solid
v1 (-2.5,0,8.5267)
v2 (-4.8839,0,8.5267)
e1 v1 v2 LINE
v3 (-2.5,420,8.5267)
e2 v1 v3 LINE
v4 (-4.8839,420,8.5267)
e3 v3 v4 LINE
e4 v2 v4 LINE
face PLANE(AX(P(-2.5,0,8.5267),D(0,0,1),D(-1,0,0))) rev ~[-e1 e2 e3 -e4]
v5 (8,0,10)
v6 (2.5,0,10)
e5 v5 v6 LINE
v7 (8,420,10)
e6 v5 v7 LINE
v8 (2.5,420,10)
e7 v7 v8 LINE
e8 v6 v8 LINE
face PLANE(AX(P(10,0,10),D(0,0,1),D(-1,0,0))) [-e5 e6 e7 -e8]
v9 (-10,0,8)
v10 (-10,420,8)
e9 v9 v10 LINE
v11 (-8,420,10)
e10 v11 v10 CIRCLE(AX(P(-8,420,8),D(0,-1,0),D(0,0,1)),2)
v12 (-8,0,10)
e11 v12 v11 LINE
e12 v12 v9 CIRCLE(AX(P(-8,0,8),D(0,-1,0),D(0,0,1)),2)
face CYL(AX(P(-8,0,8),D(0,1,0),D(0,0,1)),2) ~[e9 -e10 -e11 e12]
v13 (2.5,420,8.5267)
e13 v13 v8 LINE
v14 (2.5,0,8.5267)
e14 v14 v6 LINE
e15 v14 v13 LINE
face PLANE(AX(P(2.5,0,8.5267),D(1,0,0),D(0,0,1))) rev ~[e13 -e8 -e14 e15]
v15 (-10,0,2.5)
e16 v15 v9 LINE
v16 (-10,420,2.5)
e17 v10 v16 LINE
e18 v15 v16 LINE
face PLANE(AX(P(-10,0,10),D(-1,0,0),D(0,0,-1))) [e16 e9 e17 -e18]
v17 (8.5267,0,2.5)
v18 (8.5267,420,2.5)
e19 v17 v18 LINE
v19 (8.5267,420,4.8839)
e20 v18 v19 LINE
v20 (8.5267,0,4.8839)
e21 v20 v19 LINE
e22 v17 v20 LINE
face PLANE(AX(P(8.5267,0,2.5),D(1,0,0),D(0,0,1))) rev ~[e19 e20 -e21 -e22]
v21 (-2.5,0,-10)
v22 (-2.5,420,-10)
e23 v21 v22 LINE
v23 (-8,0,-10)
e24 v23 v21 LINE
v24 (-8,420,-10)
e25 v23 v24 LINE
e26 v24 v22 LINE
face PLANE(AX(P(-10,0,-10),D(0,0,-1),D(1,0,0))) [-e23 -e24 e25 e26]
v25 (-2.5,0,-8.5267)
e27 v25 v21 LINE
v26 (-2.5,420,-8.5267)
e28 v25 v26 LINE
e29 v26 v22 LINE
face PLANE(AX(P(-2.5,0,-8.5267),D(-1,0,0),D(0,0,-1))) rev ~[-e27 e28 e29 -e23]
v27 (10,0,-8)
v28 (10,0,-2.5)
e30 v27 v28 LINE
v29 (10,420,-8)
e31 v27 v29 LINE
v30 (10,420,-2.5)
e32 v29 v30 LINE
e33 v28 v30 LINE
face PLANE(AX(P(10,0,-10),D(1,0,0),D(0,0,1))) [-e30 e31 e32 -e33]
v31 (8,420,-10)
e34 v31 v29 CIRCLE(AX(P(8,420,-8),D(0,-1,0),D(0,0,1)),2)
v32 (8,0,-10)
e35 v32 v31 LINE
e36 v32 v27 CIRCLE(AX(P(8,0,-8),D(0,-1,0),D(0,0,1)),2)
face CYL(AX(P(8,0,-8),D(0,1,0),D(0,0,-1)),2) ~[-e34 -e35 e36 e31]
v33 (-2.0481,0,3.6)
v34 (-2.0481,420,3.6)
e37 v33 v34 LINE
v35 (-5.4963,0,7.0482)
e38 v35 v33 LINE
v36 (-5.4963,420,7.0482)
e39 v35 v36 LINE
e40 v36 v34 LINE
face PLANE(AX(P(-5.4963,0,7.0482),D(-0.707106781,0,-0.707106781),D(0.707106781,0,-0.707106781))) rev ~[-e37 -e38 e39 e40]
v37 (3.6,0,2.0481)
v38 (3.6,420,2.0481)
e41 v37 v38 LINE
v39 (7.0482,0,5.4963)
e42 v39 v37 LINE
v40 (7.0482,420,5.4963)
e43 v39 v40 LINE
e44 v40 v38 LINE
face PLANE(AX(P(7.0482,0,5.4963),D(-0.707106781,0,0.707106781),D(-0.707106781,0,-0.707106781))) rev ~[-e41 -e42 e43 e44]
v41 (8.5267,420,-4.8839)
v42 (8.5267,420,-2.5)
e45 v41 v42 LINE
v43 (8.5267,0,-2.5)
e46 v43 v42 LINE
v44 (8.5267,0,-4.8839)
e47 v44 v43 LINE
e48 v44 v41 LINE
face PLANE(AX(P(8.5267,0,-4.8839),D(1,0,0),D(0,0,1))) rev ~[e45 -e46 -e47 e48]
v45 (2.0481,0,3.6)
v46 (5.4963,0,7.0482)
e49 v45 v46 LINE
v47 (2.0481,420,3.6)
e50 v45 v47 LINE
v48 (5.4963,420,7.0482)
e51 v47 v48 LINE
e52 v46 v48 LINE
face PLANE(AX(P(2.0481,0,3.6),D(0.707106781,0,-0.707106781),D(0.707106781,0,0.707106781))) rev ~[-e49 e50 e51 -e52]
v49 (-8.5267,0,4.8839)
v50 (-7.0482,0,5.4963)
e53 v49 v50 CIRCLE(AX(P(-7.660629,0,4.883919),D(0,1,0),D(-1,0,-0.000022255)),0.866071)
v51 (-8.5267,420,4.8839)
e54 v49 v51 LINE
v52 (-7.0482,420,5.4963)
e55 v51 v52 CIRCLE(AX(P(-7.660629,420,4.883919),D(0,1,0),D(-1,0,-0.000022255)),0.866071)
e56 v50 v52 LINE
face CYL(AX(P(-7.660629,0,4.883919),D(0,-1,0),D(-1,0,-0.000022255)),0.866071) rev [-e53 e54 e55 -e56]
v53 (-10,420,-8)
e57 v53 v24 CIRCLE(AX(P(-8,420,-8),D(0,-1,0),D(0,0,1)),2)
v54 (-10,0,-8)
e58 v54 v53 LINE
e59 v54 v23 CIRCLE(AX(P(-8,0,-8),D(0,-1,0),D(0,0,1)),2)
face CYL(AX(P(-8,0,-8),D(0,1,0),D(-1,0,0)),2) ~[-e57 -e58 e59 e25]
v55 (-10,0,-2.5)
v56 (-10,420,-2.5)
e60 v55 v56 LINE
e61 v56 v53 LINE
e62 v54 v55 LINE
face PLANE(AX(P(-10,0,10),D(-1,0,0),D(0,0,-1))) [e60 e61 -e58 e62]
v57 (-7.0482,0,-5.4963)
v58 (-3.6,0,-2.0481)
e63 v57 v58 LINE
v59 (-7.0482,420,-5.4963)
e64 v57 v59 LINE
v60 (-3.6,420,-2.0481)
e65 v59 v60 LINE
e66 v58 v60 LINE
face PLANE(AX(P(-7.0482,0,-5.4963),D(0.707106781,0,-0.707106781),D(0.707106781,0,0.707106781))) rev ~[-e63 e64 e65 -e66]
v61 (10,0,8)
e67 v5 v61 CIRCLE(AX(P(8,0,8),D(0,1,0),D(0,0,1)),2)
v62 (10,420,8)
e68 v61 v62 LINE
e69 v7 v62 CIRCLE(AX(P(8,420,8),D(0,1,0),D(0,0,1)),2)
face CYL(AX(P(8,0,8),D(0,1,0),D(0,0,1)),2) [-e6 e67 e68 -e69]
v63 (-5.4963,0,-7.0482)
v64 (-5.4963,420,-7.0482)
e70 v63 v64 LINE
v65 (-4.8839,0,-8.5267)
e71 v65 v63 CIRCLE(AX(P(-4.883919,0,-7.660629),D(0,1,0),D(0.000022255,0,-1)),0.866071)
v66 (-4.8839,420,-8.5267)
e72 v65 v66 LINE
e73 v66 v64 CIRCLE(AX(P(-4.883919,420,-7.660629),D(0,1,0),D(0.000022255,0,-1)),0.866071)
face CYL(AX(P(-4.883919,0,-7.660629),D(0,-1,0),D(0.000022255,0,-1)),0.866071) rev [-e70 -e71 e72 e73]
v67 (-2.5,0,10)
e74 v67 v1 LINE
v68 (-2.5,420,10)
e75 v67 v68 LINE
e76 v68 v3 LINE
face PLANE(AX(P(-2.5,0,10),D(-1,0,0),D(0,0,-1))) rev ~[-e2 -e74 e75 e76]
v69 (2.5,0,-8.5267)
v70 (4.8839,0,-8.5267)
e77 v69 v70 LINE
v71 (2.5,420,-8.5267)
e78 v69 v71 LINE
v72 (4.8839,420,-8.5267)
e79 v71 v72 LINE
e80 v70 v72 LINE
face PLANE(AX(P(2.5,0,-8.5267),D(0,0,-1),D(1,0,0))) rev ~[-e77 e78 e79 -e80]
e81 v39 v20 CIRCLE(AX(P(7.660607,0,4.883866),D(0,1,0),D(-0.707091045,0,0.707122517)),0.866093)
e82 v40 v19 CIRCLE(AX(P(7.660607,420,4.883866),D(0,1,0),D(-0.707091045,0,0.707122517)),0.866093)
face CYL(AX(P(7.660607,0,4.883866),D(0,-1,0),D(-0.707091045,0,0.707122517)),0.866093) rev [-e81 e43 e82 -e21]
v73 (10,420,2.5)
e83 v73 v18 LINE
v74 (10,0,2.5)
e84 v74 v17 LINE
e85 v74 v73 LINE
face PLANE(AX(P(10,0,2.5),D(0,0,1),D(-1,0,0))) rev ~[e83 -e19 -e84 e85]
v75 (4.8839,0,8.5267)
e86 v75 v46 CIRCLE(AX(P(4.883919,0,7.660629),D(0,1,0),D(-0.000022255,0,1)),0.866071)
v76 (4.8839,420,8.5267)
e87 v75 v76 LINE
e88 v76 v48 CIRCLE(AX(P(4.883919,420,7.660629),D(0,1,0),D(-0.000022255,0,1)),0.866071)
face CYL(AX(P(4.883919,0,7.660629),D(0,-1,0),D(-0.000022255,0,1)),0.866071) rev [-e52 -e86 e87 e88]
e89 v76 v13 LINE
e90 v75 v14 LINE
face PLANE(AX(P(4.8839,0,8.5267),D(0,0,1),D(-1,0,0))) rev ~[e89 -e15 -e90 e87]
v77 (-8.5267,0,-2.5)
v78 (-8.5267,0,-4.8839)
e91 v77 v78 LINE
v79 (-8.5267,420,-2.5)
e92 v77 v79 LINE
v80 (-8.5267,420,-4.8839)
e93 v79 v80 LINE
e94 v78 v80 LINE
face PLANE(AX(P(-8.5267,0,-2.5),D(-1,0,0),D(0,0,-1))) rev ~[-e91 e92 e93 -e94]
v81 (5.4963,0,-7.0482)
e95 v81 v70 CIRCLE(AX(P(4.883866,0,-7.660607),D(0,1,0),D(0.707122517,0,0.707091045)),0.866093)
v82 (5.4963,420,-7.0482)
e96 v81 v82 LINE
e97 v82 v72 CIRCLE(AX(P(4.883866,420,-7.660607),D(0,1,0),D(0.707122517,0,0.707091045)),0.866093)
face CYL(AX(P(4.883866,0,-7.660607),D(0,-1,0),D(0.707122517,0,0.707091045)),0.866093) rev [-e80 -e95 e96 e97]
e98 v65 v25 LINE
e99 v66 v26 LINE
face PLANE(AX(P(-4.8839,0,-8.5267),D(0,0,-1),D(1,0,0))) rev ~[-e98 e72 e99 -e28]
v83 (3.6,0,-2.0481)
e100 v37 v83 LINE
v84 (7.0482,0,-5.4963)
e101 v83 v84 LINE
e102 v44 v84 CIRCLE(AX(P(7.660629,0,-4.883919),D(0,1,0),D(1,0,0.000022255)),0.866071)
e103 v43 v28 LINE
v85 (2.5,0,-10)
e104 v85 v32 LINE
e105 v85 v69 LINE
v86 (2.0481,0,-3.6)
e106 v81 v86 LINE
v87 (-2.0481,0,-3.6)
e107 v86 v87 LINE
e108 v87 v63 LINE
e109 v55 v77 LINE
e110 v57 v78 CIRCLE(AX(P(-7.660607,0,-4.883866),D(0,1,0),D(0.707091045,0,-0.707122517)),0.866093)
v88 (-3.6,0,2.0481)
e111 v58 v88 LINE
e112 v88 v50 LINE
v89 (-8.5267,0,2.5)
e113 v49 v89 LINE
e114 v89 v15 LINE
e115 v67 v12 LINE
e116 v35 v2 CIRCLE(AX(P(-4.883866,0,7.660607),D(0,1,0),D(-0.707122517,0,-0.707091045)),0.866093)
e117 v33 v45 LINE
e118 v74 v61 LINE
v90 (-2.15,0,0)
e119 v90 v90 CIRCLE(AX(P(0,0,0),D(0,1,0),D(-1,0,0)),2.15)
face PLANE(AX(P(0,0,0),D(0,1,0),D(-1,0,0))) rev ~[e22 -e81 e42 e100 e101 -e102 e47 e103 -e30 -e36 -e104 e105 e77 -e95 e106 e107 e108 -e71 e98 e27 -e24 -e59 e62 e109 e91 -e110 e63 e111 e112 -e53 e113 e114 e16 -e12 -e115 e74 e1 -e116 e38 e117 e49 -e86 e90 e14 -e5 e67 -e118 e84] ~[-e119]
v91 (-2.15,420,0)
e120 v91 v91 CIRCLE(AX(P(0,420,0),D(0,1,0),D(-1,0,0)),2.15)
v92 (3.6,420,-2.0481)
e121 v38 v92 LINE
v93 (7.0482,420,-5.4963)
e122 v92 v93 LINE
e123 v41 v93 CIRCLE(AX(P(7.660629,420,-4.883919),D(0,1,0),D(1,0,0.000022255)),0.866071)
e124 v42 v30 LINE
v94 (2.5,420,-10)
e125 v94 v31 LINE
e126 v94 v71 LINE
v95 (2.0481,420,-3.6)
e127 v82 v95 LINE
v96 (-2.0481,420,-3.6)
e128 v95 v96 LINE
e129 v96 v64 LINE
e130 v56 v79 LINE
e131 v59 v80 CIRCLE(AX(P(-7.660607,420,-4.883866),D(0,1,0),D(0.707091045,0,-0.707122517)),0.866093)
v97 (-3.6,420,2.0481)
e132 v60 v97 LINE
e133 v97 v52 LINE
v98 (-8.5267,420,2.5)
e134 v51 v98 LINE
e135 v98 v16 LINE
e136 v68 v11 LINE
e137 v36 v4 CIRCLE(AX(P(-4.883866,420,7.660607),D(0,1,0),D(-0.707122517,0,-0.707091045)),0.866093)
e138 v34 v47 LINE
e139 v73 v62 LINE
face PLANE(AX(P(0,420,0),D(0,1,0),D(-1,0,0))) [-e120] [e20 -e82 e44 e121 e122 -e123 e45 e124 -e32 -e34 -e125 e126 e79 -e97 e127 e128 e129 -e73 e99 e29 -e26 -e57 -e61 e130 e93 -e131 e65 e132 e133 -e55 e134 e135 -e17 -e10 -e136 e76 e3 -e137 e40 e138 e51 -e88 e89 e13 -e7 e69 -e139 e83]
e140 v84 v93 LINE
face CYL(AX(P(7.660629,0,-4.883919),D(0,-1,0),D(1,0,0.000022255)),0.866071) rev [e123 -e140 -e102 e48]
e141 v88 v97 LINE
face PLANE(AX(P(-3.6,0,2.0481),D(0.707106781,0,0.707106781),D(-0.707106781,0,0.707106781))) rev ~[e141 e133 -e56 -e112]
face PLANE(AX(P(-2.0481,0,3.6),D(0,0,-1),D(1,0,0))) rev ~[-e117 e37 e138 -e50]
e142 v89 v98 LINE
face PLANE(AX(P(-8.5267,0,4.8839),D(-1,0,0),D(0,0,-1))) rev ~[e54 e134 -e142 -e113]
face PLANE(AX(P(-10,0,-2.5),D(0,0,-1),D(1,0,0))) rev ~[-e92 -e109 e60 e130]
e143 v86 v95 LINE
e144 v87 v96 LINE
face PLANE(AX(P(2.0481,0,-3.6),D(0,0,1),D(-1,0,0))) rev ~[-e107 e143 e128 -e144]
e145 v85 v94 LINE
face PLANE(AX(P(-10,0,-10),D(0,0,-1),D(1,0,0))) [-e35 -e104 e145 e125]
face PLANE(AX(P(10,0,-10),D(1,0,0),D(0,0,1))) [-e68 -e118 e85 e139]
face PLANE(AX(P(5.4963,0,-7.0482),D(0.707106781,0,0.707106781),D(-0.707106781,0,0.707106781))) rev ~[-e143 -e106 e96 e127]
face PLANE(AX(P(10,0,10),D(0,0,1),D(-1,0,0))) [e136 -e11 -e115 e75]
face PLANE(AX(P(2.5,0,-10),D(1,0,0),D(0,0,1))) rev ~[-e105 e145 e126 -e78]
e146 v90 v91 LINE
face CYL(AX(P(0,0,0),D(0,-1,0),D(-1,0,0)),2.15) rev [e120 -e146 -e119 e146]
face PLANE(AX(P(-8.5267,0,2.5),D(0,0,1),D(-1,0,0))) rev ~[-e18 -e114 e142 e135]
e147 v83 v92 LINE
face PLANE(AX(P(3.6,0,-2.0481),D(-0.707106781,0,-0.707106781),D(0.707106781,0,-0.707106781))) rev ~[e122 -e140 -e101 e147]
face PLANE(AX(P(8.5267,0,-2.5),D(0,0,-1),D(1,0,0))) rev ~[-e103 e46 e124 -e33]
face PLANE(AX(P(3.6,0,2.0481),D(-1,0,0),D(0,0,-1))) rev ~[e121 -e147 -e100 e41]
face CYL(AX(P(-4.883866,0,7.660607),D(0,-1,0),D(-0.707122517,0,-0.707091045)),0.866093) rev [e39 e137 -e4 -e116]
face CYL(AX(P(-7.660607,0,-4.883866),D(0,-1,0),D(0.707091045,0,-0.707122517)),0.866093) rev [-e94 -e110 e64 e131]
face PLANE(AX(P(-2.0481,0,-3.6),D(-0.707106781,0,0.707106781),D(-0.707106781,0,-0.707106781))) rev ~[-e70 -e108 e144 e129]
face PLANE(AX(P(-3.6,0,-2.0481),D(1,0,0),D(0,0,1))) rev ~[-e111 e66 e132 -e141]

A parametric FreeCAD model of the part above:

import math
import FreeCAD as App
import Part
import Sketcher
from FreeCAD import Vector
Q = App.Units.Quantity


def edges_at(feature, points):
    """Names of the edges that pass closest to the given points."""
    edges = feature.Shape.Edges
    near = lambda p: min(range(len(edges)), key=lambda i: edges[i].distToShape(Part.Vertex(*p))[0])
    return sorted({f"Edge{near(p) + 1}" for p in points})

doc = App.newDocument("Part")
params = doc.addObject("Spreadsheet::Sheet", "Params")
for row, (alias, value) in enumerate([
    ("sketch1_diameter", "4.3 mm"),
    ("sketch1_width", "20 mm"),
    ("pad1_length", "420 mm"),
    ("sketch2_height", "5 mm"),
    ("pocket1_length", "420 mm"),
    ("fillet_radius", "2 mm"),
], start=1):
    params.set(f"A{row}", alias)
    params.set(f"B{row}", "=" + value)
    params.setAlias(f"B{row}", alias)

body = doc.addObject("PartDesign::Body", "Body")

# Sketch on XZ plane
sketch1 = doc.addObject("Sketcher::SketchObject", "Sketch")
body.addObject(sketch1)
sketch1.AttachmentSupport = (doc.XZ_Plane, [""])
sketch1.MapMode = "FlatFace"
sketch1.addGeometry([
    Part.LineSegment(Vector(-10, 10, 0), Vector(10, 10, 0)),  # 0
    Part.LineSegment(Vector(10, 10, 0), Vector(10, -10, 0)),  # 1
    Part.LineSegment(Vector(10, -10, 0), Vector(-10, -10, 0)),  # 2
    Part.LineSegment(Vector(-10, -10, 0), Vector(-10, 10, 0)),  # 3
    Part.Circle(Vector(0, 0, 0), Vector(0, 0, 1), 2.15),  # 4
], False)
sketch1.addConstraint([
    Sketcher.Constraint("Coincident", 0, 2, 1, 1),
    Sketcher.Constraint("Coincident", 1, 2, 2, 1),
    Sketcher.Constraint("Coincident", 2, 2, 3, 1),
    Sketcher.Constraint("Coincident", 3, 2, 0, 1),
    Sketcher.Constraint("Horizontal", 0),
    Sketcher.Constraint("Vertical", 1),
    Sketcher.Constraint("Horizontal", 2),
    Sketcher.Constraint("Vertical", 3),
    Sketcher.Constraint("Coincident", 4, 3, -1, 1),
    Sketcher.Constraint("Symmetric", 0, 2, 2, 2, -1, 1),
    Sketcher.Constraint("Equal", 2, 1),
    Sketcher.Constraint("Diameter", 4, Q("4.3 mm")),
    Sketcher.Constraint("DistanceX", 0, 1, 0, 2, Q("20 mm")),
])
sketch1.setExpression("Constraints[11]", "Params.sketch1_diameter")
sketch1.setExpression("Constraints[12]", "Params.sketch1_width")
pad1 = doc.addObject("PartDesign::Pad", "Pad")
body.addObject(pad1)
pad1.Profile = sketch1
pad1.setExpression("Length", "Params.pad1_length")
pad1.Reversed = True

# Sketch on XZ plane
sketch2 = doc.addObject("Sketcher::SketchObject", "Sketch001")
body.addObject(sketch2)
sketch2.AttachmentSupport = (doc.XZ_Plane, [""])
sketch2.MapMode = "FlatFace"
sketch2.addGeometry([
    Part.LineSegment(Vector(-10, -2.5, 0), Vector(-10, 2.5, 0)),  # 0
    Part.LineSegment(Vector(-10, 2.5, 0), Vector(-8.5267, 2.5, 0)),  # 1
    Part.LineSegment(Vector(-8.5267, 2.5, 0), Vector(-8.5267, 4.8839, 0)),  # 2
    Part.ArcOfCircle(Part.Circle(Vector(-7.6606, 4.8839, 0), Vector(0, 0, 1), 0.8661), math.radians(45), math.radians(180)),  # 3
    Part.LineSegment(Vector(-7.0482, 5.4963, 0), Vector(-3.6, 2.0481, 0)),  # 4
    Part.LineSegment(Vector(-3.6, 2.0481, 0), Vector(-3.6, -2.0481, 0)),  # 5
    Part.LineSegment(Vector(-3.6, -2.0481, 0), Vector(-7.0482, -5.4963, 0)),  # 6
    Part.ArcOfCircle(Part.Circle(Vector(-7.6606, -4.8839, 0), Vector(0, 0, 1), 0.866064), math.radians(180), math.radians(315)),  # 7
    Part.LineSegment(Vector(-8.5267, -4.8839, 0), Vector(-8.5267, -2.5, 0)),  # 8
    Part.LineSegment(Vector(-8.5267, -2.5, 0), Vector(-10, -2.5, 0)),  # 9
], False)
sketch2.addConstraint([
    Sketcher.Constraint("Coincident", 0, 2, 1, 1),
    Sketcher.Constraint("Coincident", 1, 2, 2, 1),
    Sketcher.Constraint("Tangent", 2, 2, 3, 2),
    Sketcher.Constraint("Tangent", 3, 1, 4, 1),
    Sketcher.Constraint("Coincident", 4, 2, 5, 1),
    Sketcher.Constraint("Coincident", 5, 2, 6, 1),
    Sketcher.Constraint("Tangent", 6, 2, 7, 2),
    Sketcher.Constraint("Tangent", 7, 1, 8, 1),
    Sketcher.Constraint("Coincident", 8, 2, 9, 1),
    Sketcher.Constraint("Coincident", 9, 2, 0, 1),
    Sketcher.Constraint("Vertical", 0),
    Sketcher.Constraint("Horizontal", 1),
    Sketcher.Constraint("Vertical", 2),
    Sketcher.Constraint("Vertical", 5),
    Sketcher.Constraint("Vertical", 8),
    Sketcher.Constraint("Horizontal", 9),
    Sketcher.Constraint("Equal", 3, 7),
    Sketcher.Constraint("Symmetric", 3, 3, 7, 3, -1),
    Sketcher.Constraint("Perpendicular", 4, 6),
    Sketcher.Constraint("Vertical", 3, 1, 6, 2),
    Sketcher.Constraint("Equal", 2, 8),
    Sketcher.Constraint("DistanceY", 0, 1, 0, 2, Q("5 mm")),
    Sketcher.Constraint("DistanceX", 0, 2, 4, 2, Q("6.4 mm")),
    Sketcher.Constraint("DistanceX", 0, 2, -1, 1, Q("10 mm")),
    Sketcher.Constraint("Radius", 3, Q("0.866 mm")),
    Sketcher.Constraint("DistanceY", 2, 1, 2, 2, Q("2.384 mm")),
    Sketcher.Constraint("DistanceX", 1, 1, 1, 2, Q("1.4733 mm")),
])
sketch2.setExpression("Constraints[21]", "Params.sketch2_height")
pocket1 = doc.addObject("PartDesign::Pocket", "Pocket")
body.addObject(pocket1)
pocket1.Profile = sketch2
pocket1.setExpression("Length", "Params.pocket1_length")
doc.recompute()

polarpattern = doc.addObject("PartDesign::PolarPattern", "PolarPattern")
body.addObject(polarpattern)
polarpattern.Originals = [pocket1]
polarpattern.Axis = (doc.Y_Axis, [""])
polarpattern.Angle = 360
polarpattern.Occurrences = 4
body.Tip = polarpattern
doc.recompute()

fillet = doc.addObject("PartDesign::Fillet", "Fillet")
body.addObject(fillet)
fillet.Base = (polarpattern, edges_at(polarpattern, [
    (-10, 210, -10),
    (10, 210, -10),
    (10, 210, 10),
    (-10, 210, 10),
]))
fillet.setExpression("Radius", "Params.fillet_radius")

doc.recompute()
